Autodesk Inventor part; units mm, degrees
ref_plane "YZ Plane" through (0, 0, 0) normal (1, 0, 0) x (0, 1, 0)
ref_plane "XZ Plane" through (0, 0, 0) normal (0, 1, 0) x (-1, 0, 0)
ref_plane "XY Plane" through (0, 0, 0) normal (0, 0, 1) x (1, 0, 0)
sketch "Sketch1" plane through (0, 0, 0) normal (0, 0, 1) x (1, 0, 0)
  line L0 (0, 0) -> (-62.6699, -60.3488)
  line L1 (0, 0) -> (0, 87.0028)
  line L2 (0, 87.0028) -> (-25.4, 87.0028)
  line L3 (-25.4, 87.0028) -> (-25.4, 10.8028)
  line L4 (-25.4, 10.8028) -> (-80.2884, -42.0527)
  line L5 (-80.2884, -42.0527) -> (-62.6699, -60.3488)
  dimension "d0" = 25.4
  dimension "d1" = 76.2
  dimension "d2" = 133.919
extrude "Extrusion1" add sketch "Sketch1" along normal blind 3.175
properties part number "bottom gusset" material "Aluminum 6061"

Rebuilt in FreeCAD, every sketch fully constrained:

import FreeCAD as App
import Part
import Sketcher
Q = App.Units.Quantity


def add_polygon(sketch, points):
    """Adds a closed chain of lines whose ends are joined by coincident constraints."""
    first, n = sketch.GeometryCount, len(points)
    for a, b in zip(points, points[1:] + points[:1]):
        sketch.addGeometry(Part.LineSegment(App.Vector(*a, 0), App.Vector(*b, 0)), False)
    for i in range(n):
        sketch.addConstraint(Sketcher.Constraint("Coincident", first + i, 2, first + (i + 1) % n, 1))

doc = App.newDocument("Part")
body = doc.addObject("PartDesign::Body", "Body")

sketch1 = body.newObject("Sketcher::SketchObject", "Sketch")
sketch1.AttachmentSupport = (doc.getObject("XY_Plane"), [""])
sketch1.MapMode = "FlatFace"
add_polygon(sketch1, [(-63, -60), (0, 0), (0, 87), (-25, 87), (-25, 11), (-80, -42)])
sketch1.addConstraint(Sketcher.Constraint("Vertical", 1))
sketch1.addConstraint(Sketcher.Constraint("Horizontal", 2))
sketch1.addConstraint(Sketcher.Constraint("Vertical", 3))
sketch1.addConstraint(Sketcher.Constraint("Coincident", 0, 2, -1, 1))
sketch1.addConstraint(Sketcher.Constraint("Parallel", 0, 4))
sketch1.addConstraint(Sketcher.Constraint("Perpendicular", 4, 5))
sketch1.addConstraint(Sketcher.Constraint("DistanceX", 2, 2, 2, 1, Q("1 in")))
sketch1.addConstraint(Sketcher.Constraint("DistanceY", 3, 2, 3, 1, Q("3 in")))
sketch1.addConstraint(Sketcher.Constraint("Distance", 4, Q("3 in")))
sketch1.addConstraint(Sketcher.Constraint("Distance", 5, Q("1 in")))
sketch1.addConstraint(Sketcher.Constraint("Angle", 0, Q("43.919 deg")))
pad1 = body.newObject("PartDesign::Pad", "Pad")
pad1.Profile = sketch1
pad1.Length = Q("0.125 in")

doc.recompute()
